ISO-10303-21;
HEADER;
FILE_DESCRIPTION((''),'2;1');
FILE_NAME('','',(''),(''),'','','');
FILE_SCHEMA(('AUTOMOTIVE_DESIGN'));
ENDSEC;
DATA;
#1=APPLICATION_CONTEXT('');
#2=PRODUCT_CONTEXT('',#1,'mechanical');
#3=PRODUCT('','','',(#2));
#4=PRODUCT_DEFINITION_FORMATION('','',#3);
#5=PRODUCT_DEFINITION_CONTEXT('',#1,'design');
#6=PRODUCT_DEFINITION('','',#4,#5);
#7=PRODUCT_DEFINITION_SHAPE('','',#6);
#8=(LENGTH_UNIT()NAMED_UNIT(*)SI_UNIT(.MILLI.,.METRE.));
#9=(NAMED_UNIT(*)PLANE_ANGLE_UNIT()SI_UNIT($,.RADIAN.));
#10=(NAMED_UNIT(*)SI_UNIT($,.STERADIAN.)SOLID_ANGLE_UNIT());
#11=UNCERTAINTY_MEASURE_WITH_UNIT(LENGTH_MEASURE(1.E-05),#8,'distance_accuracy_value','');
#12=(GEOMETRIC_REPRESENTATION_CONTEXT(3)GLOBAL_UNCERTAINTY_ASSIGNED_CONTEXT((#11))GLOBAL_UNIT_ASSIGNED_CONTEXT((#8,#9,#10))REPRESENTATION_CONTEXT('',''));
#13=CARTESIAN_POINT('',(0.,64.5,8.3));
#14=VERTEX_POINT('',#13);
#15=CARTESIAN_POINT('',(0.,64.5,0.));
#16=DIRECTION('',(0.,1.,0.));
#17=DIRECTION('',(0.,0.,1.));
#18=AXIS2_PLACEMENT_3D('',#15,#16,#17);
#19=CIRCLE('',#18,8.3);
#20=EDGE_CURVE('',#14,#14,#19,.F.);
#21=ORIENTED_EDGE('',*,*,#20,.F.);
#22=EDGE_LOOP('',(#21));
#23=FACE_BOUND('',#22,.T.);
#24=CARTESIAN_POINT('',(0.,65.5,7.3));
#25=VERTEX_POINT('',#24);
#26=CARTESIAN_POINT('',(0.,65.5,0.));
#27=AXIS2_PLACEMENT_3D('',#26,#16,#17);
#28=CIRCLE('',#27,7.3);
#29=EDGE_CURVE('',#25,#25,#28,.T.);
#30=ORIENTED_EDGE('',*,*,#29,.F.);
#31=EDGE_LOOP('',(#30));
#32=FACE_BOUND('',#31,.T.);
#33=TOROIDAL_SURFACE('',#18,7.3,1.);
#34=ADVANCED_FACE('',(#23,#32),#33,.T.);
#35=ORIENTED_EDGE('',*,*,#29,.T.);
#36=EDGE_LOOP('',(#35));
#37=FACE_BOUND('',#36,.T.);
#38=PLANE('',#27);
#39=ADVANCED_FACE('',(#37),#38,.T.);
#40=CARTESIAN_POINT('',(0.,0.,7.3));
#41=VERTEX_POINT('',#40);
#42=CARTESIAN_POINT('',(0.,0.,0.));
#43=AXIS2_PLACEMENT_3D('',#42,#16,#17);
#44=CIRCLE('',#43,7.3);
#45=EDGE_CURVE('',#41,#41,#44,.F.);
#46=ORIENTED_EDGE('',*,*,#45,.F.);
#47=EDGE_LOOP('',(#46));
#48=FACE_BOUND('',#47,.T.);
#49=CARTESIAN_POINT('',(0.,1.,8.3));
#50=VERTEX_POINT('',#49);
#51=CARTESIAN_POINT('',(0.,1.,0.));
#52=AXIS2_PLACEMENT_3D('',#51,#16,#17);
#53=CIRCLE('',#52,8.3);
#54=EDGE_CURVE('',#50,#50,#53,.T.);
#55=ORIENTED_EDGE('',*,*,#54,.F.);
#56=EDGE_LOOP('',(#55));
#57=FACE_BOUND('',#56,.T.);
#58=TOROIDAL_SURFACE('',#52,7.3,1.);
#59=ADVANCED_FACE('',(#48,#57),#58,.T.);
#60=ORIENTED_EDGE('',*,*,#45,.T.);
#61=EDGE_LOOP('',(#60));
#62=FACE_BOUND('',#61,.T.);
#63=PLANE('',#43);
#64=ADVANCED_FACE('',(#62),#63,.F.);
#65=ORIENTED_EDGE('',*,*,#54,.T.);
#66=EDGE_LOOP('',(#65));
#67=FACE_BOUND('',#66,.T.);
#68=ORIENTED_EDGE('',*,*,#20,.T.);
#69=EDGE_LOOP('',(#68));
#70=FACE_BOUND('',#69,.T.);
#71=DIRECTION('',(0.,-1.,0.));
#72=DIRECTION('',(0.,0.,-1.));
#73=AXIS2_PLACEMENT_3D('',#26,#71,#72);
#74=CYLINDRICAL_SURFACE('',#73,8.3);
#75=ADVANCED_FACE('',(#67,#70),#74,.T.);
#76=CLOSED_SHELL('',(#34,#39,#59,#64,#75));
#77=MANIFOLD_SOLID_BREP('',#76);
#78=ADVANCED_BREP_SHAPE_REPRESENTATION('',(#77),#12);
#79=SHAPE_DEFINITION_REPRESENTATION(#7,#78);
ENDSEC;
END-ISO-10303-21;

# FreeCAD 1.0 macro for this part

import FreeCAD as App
import Part
import Sketcher

V = App.Vector


def edges_at(feature, points):
    """Names of the edges that pass closest to the given points."""
    edges = feature.Shape.Edges
    near = lambda p: min(range(len(edges)), key=lambda i: edges[i].distToShape(Part.Vertex(*p))[0])
    return sorted({f"Edge{near(p) + 1}" for p in points})

doc = App.newDocument("Part")
body = doc.addObject("PartDesign::Body", "Body")

sketch1 = body.newObject("Sketcher::SketchObject", "Sketch")
sketch1.AttachmentSupport = (doc.getObject("XZ_Plane"), [""])
sketch1.MapMode = "FlatFace"
sketch1.addGeometry(Part.Circle(V(0, 0, 0), V(0, 0, 1), 8), False)
sketch1.addConstraint(Sketcher.Constraint("Coincident", 0, 3, -1, 1))
sketch1.addConstraint(Sketcher.Constraint("Diameter", 0, 16.6))
pad1 = body.newObject("PartDesign::Pad", "Pad")
pad1.Profile = sketch1
pad1.Length = 65.5
pad1.Reversed = True
doc.recompute()

fillet = body.newObject("PartDesign::Fillet", "Fillet")
fillet.Base = (pad1, edges_at(pad1, [(0, 0, -8.3), (0, 65.5, -8.3)]))
fillet.Radius = 1

doc.recompute()
